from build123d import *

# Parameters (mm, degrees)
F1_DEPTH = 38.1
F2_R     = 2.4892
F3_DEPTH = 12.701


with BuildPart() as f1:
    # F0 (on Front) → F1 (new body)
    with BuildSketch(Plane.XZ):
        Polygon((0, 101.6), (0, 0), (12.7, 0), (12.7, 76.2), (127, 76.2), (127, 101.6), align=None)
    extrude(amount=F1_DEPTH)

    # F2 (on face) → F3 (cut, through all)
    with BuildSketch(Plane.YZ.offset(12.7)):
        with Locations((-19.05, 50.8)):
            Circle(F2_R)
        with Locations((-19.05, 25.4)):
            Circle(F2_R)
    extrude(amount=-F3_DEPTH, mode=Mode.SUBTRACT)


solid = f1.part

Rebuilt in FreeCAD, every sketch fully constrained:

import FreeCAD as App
import Part
import Sketcher

V = App.Vector
Q = App.Units.Quantity


def add_polygon(sketch, points):
    """Adds a closed chain of lines whose ends are joined by coincident constraints."""
    first, n = sketch.GeometryCount, len(points)
    for a, b in zip(points, points[1:] + points[:1]):
        sketch.addGeometry(Part.LineSegment(App.Vector(*a, 0), App.Vector(*b, 0)), False)
    for i in range(n):
        sketch.addConstraint(Sketcher.Constraint("Coincident", first + i, 2, first + (i + 1) % n, 1))

doc = App.newDocument("Part")
params = doc.addObject("Spreadsheet::Sheet", "Params")
for row, (alias, value) in enumerate([
    ("sketch1_width", "5 in"),
    ("sketch1_height", "4 in"),
    ("sketch1_height2", "3 in"),
    ("sketch1_width2", "0.5 in"),
    ("pad1_length", "1.5 in"),
    ("sketch2_diameter", "0.196 in"),
], start=1):
    params.set(f"A{row}", alias)
    params.set(f"B{row}", "=" + value)
    params.setAlias(f"B{row}", alias)

body = doc.addObject("PartDesign::Body", "Body")

# Sketch on XZ plane
sketch1 = body.newObject("Sketcher::SketchObject", "Sketch")
sketch1.AttachmentSupport = (doc.getObject("XZ_Plane"), [""])
sketch1.MapMode = "FlatFace"
add_polygon(sketch1, [(0, 102), (0, 0), (13, 0), (13, 76), (127, 76), (127, 102)])  # lines 0-5
sketch1.addConstraint([
    Sketcher.Constraint("Vertical", 0),
    Sketcher.Constraint("Horizontal", 1),
    Sketcher.Constraint("Vertical", 2),
    Sketcher.Constraint("Horizontal", 3),
    Sketcher.Constraint("Vertical", 4),
    Sketcher.Constraint("Horizontal", 5),
    Sketcher.Constraint("Coincident", 0, 2, -1, 1),
    Sketcher.Constraint("DistanceX", 5, 2, 5, 1, Q("5 in")),
    Sketcher.Constraint("DistanceY", 0, 2, 0, 1, Q("4 in")),
    Sketcher.Constraint("DistanceY", 2, 1, 2, 2, Q("3 in")),
    Sketcher.Constraint("DistanceX", 1, 1, 1, 2, Q("0.5 in")),
])
sketch1.setExpression("Constraints[13]", "Params.sketch1_width")
sketch1.setExpression("Constraints[14]", "Params.sketch1_height")
sketch1.setExpression("Constraints[15]", "Params.sketch1_height2")
sketch1.setExpression("Constraints[16]", "Params.sketch1_width2")
pad1 = body.newObject("PartDesign::Pad", "Pad")
pad1.Profile = sketch1
pad1.setExpression("Length", "Params.pad1_length")

# Sketch on YZ plane
sketch2 = body.newObject("Sketcher::SketchObject", "Sketch001")
sketch2.AttachmentSupport = (doc.getObject("YZ_Plane"), [""])
sketch2.MapMode = "FlatFace"
sketch2.AttachmentOffset = App.Placement(V(0, 0, 0.5 * 25.4), App.Rotation())
sketch2.addGeometry([
    Part.Circle(V(-19.1, 50.8, 0), V(0, 0, 1), 2.5),
    Part.Circle(V(-19.1, 25.4, 0), V(0, 0, 1), 2.5),
], False)
sketch2.addConstraint([
    Sketcher.Constraint("Equal", 0, 1),
    Sketcher.Constraint("Vertical", 0, 3, 1, 3),
    Sketcher.Constraint("Diameter", 0, Q("0.196 in")),
    Sketcher.Constraint("DistanceY", -1, 1, 0, 3, Q("2 in")),
    Sketcher.Constraint("DistanceY", -1, 1, 1, 3, Q("1 in")),
    Sketcher.Constraint("DistanceX", 0, 3, -1, 1, Q("0.75 in")),
])
sketch2.setExpression("Constraints[2]", "Params.sketch2_diameter")
pocket1 = body.newObject("PartDesign::Pocket", "Pocket")
pocket1.Profile = sketch2
pocket1.Type = "ThroughAll"

doc.recompute()
